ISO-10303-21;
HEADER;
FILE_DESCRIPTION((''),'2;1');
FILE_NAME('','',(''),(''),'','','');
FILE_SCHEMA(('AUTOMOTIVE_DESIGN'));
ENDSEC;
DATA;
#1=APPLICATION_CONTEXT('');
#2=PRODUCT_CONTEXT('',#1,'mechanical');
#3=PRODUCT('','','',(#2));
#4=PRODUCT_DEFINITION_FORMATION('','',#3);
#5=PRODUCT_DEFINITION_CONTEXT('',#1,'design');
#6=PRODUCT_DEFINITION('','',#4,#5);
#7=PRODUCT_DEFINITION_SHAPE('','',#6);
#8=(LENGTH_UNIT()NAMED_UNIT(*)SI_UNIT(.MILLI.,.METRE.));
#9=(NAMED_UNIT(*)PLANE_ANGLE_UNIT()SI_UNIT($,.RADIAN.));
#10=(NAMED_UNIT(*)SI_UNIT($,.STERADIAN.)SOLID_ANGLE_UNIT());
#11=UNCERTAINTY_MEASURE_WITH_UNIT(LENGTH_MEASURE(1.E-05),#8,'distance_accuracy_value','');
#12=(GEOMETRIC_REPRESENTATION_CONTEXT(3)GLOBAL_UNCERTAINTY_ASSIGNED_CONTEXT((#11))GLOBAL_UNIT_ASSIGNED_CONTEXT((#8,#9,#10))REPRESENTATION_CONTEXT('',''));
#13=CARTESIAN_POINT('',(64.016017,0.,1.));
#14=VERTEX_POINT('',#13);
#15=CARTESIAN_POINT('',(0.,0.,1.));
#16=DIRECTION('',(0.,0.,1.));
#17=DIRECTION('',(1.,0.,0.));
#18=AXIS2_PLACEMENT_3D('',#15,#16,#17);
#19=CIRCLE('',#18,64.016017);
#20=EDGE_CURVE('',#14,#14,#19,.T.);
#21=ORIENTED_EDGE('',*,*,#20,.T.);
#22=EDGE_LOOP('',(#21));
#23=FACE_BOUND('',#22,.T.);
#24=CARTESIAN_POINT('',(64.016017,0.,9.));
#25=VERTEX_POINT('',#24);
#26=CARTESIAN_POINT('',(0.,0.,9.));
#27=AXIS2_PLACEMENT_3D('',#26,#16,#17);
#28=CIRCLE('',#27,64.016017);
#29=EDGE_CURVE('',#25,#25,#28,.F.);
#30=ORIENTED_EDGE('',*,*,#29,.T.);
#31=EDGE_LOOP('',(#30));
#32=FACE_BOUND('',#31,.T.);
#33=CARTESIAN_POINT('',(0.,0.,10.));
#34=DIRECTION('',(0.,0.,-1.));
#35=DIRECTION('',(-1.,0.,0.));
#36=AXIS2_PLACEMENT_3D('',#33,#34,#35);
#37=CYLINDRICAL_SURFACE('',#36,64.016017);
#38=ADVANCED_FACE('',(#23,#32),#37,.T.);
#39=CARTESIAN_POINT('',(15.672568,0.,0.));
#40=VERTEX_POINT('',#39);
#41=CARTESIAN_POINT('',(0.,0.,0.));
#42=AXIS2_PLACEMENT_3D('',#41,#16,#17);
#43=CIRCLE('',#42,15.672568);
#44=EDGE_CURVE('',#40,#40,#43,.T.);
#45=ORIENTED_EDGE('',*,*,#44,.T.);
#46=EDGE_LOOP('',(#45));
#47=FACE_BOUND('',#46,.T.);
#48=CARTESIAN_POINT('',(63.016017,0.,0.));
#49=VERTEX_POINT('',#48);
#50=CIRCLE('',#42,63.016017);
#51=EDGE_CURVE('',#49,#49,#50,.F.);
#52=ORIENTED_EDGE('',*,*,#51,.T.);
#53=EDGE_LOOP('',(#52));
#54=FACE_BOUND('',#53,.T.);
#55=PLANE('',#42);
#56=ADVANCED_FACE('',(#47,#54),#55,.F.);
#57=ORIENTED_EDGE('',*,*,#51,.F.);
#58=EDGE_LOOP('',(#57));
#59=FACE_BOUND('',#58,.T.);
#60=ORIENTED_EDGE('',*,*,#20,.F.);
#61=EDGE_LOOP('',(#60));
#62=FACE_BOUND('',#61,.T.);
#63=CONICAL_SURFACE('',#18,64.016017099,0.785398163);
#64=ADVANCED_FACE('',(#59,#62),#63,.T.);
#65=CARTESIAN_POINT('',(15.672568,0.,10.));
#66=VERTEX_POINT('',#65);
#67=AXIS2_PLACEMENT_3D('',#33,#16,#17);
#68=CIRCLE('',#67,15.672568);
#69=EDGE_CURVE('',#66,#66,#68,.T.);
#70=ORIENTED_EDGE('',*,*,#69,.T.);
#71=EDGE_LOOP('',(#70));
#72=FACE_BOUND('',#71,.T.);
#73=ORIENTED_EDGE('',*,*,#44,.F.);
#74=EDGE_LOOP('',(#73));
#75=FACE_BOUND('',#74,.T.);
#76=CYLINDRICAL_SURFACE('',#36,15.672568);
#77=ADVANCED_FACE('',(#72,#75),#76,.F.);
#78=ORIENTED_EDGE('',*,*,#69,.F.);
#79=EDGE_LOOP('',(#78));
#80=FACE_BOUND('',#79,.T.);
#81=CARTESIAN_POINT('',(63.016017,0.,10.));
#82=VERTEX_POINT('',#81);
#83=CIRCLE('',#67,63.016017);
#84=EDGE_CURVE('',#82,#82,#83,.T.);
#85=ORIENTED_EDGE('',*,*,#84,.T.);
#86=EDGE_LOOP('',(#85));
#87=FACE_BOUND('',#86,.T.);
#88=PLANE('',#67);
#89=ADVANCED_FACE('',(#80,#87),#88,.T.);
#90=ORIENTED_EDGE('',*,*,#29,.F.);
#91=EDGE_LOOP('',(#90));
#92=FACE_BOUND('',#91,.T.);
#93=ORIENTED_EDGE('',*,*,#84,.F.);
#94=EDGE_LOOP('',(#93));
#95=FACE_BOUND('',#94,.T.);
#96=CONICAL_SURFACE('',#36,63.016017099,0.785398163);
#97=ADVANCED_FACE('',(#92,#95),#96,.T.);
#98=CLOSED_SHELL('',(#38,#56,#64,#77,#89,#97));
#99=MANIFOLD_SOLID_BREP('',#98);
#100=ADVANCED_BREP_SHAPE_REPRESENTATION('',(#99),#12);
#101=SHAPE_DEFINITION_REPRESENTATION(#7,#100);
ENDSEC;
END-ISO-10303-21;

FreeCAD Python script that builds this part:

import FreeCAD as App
import Part
import Sketcher
from FreeCAD import Vector


def edges_at(feature, points):
    """Names of the edges that pass closest to the given points."""
    edges = feature.Shape.Edges
    near = lambda p: min(range(len(edges)), key=lambda i: edges[i].distToShape(Part.Vertex(*p))[0])
    return sorted({f"Edge{near(p) + 1}" for p in points})

doc = App.newDocument("Part")
params = doc.addObject("Spreadsheet::Sheet", "Params")
for row, (alias, value) in enumerate([
    ("pad1_length", "10 mm"),
    ("chamfer_size", "1 mm"),
], start=1):
    params.set(f"A{row}", alias)
    params.set(f"B{row}", "=" + value)
    params.setAlias(f"B{row}", alias)

body = doc.addObject("PartDesign::Body", "Body")

# Sketch on XY plane
sketch1 = body.newObject("Sketcher::SketchObject", "Sketch")
sketch1.AttachmentSupport = (doc.getObject("XY_Plane"), [""])
sketch1.MapMode = "FlatFace"
sketch1.addGeometry([
    Part.Circle(Vector(0, 0, 0), Vector(0, 0, 1), 64),
    Part.Circle(Vector(0, 0, 0), Vector(0, 0, 1), 16),
], False)
sketch1.addConstraint([
    Sketcher.Constraint("Coincident", 0, 3, -1, 1),
    Sketcher.Constraint("Coincident", 1, 3, -1, 1),
    Sketcher.Constraint("Diameter", 0, 128.032034),
    Sketcher.Constraint("Diameter", 1, 31.345137),
])
pad1 = body.newObject("PartDesign::Pad", "Pad")
pad1.Profile = sketch1
pad1.setExpression("Length", "Params.pad1_length")
doc.recompute()

chamfer = body.newObject("PartDesign::Chamfer", "Chamfer")
chamfer.Base = (pad1, edges_at(pad1, [(-64.016, 0, 0), (-64.016, 0, 10)]))
chamfer.setExpression("Size", "Params.chamfer_size")

doc.recompute()
